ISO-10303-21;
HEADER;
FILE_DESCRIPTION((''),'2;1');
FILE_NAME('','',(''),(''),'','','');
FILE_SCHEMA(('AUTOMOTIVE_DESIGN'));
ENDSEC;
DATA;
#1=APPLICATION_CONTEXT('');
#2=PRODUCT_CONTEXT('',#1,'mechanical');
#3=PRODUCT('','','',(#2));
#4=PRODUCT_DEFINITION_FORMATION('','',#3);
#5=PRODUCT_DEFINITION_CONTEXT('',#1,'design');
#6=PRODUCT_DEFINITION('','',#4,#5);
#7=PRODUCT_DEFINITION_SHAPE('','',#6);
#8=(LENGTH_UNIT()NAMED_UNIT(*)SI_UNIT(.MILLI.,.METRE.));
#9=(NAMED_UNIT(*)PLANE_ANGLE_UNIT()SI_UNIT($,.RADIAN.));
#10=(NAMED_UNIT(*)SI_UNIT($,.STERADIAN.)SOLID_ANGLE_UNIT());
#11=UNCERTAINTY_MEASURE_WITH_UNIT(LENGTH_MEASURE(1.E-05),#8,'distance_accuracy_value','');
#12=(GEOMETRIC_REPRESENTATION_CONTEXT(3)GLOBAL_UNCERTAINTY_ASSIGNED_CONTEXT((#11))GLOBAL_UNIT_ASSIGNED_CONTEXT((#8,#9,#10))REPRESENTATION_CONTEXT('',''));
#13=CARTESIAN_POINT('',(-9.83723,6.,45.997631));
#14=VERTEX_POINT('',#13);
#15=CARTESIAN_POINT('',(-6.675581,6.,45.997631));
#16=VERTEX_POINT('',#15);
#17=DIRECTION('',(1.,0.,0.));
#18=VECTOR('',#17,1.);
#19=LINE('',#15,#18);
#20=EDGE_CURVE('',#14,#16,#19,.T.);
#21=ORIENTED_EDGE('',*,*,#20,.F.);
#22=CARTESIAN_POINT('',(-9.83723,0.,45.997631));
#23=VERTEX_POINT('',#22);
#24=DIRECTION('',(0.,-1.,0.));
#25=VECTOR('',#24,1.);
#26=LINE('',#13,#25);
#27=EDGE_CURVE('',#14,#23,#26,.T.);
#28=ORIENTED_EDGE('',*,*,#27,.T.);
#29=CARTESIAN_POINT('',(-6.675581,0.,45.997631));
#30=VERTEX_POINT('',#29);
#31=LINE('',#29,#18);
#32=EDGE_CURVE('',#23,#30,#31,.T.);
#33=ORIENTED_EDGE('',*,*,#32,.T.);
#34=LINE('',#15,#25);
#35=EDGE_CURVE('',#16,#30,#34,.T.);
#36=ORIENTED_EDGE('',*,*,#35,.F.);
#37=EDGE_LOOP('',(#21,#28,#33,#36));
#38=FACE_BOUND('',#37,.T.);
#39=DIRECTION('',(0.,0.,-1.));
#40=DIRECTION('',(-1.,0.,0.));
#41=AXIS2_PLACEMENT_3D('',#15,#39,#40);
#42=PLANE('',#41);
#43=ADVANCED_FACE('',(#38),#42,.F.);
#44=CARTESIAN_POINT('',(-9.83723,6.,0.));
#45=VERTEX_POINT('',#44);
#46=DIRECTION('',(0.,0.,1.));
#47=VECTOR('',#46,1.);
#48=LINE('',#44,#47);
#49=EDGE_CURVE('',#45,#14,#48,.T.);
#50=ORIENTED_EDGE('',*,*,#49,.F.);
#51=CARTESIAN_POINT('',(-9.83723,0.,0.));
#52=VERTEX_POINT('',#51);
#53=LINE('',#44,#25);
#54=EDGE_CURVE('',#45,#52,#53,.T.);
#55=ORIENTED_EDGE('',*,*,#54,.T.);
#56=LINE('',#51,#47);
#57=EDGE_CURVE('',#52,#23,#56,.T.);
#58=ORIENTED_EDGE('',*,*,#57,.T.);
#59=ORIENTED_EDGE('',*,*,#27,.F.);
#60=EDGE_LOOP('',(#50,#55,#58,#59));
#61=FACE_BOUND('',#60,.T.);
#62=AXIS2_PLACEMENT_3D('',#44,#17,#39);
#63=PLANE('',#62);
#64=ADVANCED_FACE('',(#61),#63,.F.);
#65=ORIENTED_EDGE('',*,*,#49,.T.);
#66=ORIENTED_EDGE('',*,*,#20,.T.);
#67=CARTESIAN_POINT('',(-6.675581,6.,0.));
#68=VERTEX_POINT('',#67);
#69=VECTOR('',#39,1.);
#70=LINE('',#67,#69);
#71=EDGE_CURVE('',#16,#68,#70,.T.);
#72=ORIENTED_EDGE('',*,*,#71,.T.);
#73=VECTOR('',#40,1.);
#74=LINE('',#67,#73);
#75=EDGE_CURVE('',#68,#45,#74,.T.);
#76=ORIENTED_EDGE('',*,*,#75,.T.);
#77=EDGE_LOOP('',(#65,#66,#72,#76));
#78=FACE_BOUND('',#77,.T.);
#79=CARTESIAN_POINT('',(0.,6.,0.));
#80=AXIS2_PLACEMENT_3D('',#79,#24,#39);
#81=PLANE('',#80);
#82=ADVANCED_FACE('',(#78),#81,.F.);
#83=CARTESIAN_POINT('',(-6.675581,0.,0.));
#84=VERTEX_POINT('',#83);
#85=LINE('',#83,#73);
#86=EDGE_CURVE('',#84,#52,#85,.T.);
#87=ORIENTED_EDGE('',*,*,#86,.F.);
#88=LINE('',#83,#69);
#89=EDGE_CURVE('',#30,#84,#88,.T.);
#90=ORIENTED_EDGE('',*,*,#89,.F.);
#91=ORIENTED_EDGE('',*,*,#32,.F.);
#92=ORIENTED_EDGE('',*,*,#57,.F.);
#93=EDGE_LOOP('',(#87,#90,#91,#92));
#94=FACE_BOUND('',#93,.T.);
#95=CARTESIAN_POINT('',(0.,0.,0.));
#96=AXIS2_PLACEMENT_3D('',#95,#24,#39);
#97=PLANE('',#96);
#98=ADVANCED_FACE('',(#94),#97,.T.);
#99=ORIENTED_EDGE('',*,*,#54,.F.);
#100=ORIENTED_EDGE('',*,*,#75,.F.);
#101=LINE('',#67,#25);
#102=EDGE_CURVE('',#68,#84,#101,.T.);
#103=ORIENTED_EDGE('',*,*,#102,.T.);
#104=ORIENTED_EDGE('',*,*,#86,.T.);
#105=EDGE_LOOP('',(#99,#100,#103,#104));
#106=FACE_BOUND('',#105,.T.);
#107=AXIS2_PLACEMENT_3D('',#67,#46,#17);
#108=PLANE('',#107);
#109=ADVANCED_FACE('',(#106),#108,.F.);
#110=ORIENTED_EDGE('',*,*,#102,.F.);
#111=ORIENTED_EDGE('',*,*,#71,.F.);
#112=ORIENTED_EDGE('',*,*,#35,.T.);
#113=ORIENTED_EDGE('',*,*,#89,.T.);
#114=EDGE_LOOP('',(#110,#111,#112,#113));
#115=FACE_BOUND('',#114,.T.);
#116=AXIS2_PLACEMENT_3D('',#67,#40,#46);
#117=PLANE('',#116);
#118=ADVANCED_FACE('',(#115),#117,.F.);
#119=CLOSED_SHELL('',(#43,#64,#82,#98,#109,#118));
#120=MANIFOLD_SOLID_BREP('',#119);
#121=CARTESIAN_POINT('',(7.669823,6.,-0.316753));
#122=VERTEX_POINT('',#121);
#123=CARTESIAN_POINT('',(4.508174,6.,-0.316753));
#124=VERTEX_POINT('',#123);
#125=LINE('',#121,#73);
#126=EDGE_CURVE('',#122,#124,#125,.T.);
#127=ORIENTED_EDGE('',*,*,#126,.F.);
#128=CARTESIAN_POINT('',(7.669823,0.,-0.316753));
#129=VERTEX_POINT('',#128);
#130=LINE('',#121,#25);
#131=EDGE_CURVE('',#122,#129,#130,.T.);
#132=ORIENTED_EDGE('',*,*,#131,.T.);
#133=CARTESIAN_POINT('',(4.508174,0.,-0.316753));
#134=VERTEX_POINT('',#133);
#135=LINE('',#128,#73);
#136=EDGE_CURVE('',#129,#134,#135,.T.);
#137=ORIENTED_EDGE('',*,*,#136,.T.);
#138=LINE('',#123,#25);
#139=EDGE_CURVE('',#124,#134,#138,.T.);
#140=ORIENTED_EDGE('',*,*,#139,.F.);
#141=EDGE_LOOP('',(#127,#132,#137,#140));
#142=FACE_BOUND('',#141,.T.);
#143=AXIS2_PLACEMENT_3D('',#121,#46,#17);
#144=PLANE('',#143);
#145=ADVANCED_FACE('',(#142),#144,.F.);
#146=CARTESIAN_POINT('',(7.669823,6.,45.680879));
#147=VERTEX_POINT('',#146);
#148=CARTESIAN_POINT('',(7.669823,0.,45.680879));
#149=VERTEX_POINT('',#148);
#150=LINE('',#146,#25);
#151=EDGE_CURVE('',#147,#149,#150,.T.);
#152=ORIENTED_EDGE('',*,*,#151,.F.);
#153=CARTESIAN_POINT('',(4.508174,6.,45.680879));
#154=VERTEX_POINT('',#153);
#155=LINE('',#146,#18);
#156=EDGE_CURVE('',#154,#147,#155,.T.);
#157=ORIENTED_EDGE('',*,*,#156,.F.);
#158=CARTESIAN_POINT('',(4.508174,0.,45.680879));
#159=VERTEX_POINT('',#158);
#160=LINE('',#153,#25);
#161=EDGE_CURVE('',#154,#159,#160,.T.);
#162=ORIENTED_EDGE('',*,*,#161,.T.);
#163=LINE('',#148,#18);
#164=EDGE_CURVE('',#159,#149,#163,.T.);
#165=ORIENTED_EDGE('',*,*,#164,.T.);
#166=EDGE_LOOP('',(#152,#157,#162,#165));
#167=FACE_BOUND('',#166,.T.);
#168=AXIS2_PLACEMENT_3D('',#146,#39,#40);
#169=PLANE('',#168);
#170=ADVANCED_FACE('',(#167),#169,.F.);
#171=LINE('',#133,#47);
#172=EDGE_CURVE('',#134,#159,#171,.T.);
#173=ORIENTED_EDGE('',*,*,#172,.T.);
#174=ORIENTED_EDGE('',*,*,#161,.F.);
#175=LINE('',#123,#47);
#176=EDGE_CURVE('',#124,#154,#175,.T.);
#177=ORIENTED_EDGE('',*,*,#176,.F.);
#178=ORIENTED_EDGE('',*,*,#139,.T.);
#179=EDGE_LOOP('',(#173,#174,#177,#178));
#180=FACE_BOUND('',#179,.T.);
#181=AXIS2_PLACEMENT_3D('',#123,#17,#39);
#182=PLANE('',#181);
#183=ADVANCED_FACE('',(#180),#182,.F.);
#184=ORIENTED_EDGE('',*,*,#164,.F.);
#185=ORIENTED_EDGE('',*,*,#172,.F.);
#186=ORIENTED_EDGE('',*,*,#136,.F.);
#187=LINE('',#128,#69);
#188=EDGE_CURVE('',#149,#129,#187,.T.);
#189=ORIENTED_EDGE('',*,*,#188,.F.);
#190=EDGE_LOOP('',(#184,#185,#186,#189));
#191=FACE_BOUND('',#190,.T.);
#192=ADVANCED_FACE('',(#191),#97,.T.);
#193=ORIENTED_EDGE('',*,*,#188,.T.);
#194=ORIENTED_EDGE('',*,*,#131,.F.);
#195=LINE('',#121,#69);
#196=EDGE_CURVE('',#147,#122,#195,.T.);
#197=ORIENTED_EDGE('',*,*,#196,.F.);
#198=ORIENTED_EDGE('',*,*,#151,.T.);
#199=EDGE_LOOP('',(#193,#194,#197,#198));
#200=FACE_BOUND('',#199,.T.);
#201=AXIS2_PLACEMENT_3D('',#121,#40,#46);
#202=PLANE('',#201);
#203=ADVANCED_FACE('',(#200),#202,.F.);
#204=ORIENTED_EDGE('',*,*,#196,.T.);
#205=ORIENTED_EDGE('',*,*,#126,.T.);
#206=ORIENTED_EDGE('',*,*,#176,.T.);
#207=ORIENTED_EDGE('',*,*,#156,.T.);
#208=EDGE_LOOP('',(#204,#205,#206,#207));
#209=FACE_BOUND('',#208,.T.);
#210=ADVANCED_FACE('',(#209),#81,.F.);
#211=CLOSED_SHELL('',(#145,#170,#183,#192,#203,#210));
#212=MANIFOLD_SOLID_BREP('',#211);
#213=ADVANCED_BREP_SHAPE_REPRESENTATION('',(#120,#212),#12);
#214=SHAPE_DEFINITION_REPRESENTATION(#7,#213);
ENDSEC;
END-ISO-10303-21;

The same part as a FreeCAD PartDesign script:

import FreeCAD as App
import Part
import Sketcher

doc = App.newDocument("Part")
body = doc.addObject("PartDesign::Body", "Body")

# Sketch on XZ plane
sketch1 = body.newObject("Sketcher::SketchObject", "Sketch")
sketch1.AttachmentSupport = (doc.getObject("XZ_Plane"), [""])
sketch1.MapMode = "FlatFace"
sketch1.addGeometry(Part.LineSegment(App.Vector(4.5, -0.3, 0), App.Vector(4.5, 45.7, 0)), False)
sketch1.addGeometry(Part.LineSegment(App.Vector(4.5, 45.7, 0), App.Vector(7.7, 45.7, 0)), False)
sketch1.addGeometry(Part.LineSegment(App.Vector(7.7, 45.7, 0), App.Vector(7.7, -0.3, 0)), False)
sketch1.addGeometry(Part.LineSegment(App.Vector(7.7, -0.3, 0), App.Vector(4.5, -0.3, 0)), False)
sketch1.addConstraint(Sketcher.Constraint("Coincident", 0, 2, 1, 1))
sketch1.addConstraint(Sketcher.Constraint("Coincident", 1, 2, 2, 1))
sketch1.addConstraint(Sketcher.Constraint("Coincident", 2, 2, 3, 1))
sketch1.addConstraint(Sketcher.Constraint("Coincident", 3, 2, 0, 1))
sketch1.addConstraint(Sketcher.Constraint("Vertical", 0))
sketch1.addConstraint(Sketcher.Constraint("Horizontal", 1))
sketch1.addConstraint(Sketcher.Constraint("Vertical", 2))
sketch1.addConstraint(Sketcher.Constraint("Horizontal", 3))
sketch1.addConstraint(Sketcher.Constraint("DistanceX", 1, 1, 1, 2, 3.161649))
sketch1.addConstraint(Sketcher.Constraint("DistanceY", 0, 1, 0, 2, 45.997631))
sketch1.addConstraint(Sketcher.Constraint("DistanceY", -1, 1, 0, 2, 45.680879))
sketch1.addConstraint(Sketcher.Constraint("DistanceX", -1, 1, 0, 2, 4.508174))
pad1 = body.newObject("PartDesign::Pad", "Pad")
pad1.Profile = sketch1
pad1.Length = 6
pad1.Reversed = True
body2 = doc.addObject("PartDesign::Body", "Body001")

# Sketch on XZ plane
sketch2 = body2.newObject("Sketcher::SketchObject", "Sketch001")
sketch2.AttachmentSupport = (doc.getObject("XZ_Plane001"), [""])
sketch2.MapMode = "FlatFace"
sketch2.addGeometry(Part.LineSegment(App.Vector(-9.8, 0, 0), App.Vector(-9.8, 46, 0)), False)
sketch2.addGeometry(Part.LineSegment(App.Vector(-9.8, 46, 0), App.Vector(-6.7, 46, 0)), False)
sketch2.addGeometry(Part.LineSegment(App.Vector(-6.7, 46, 0), App.Vector(-6.7, 0, 0)), False)
sketch2.addGeometry(Part.LineSegment(App.Vector(-6.7, 0, 0), App.Vector(-9.8, 0, 0)), False)
sketch2.addConstraint(Sketcher.Constraint("Coincident", 0, 2, 1, 1))
sketch2.addConstraint(Sketcher.Constraint("Coincident", 1, 2, 2, 1))
sketch2.addConstraint(Sketcher.Constraint("Coincident", 2, 2, 3, 1))
sketch2.addConstraint(Sketcher.Constraint("Coincident", 3, 2, 0, 1))
sketch2.addConstraint(Sketcher.Constraint("Vertical", 0))
sketch2.addConstraint(Sketcher.Constraint("Horizontal", 1))
sketch2.addConstraint(Sketcher.Constraint("Vertical", 2))
sketch2.addConstraint(Sketcher.Constraint("Horizontal", 3))
sketch2.addConstraint(Sketcher.Constraint("PointOnObject", 2, 2, -1))
sketch2.addConstraint(Sketcher.Constraint("DistanceX", 1, 1, 1, 2, 3.161649))
sketch2.addConstraint(Sketcher.Constraint("DistanceY", 0, 1, 0, 2, 45.997631))
sketch2.addConstraint(Sketcher.Constraint("DistanceX", 0, 2, -1, 1, 9.83723))
pad2 = body2.newObject("PartDesign::Pad", "Pad001")
pad2.Profile = sketch2
pad2.Length = 6
pad2.Reversed = True

doc.recompute()
